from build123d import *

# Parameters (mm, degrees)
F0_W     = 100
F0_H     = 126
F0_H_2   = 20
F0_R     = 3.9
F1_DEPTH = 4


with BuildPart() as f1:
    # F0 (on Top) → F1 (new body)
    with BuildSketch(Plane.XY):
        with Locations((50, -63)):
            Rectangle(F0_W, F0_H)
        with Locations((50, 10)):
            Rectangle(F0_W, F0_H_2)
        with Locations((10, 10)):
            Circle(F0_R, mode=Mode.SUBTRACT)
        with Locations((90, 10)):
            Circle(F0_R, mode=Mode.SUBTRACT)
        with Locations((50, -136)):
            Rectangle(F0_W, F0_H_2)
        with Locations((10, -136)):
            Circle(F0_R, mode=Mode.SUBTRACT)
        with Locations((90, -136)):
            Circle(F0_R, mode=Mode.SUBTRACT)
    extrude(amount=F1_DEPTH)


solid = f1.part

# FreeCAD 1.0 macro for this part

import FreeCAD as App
import Part
import Sketcher
from FreeCAD import Vector
Q = App.Units.Quantity


def add_polygon(sketch, points):
    """Adds a closed chain of lines whose ends are joined by coincident constraints."""
    first, n = sketch.GeometryCount, len(points)
    for a, b in zip(points, points[1:] + points[:1]):
        sketch.addGeometry(Part.LineSegment(App.Vector(*a, 0), App.Vector(*b, 0)), False)
    for i in range(n):
        sketch.addConstraint(Sketcher.Constraint("Coincident", first + i, 2, first + (i + 1) % n, 1))

doc = App.newDocument("Part")
body = doc.addObject("PartDesign::Body", "Body")

sketch1 = body.newObject("Sketcher::SketchObject", "Sketch")
sketch1.AttachmentSupport = (doc.getObject("XY_Plane"), [""])
sketch1.MapMode = "FlatFace"
add_polygon(sketch1, [(0, 20), (0, -146), (100, -146), (100, 20)])
sketch1.addGeometry(Part.Circle(Vector(10, -136, 0), Vector(0, 0, 1), 3.9), False)
sketch1.addGeometry(Part.Circle(Vector(90, -136, 0), Vector(0, 0, 1), 3.9), False)
sketch1.addGeometry(Part.Circle(Vector(10, 10, 0), Vector(0, 0, 1), 3.9), False)
sketch1.addGeometry(Part.Circle(Vector(90, 10, 0), Vector(0, 0, 1), 3.9), False)
sketch1.addConstraint([
    Sketcher.Constraint("Vertical", 0),
    Sketcher.Constraint("Horizontal", 1),
    Sketcher.Constraint("Vertical", 2),
    Sketcher.Constraint("Horizontal", 3),
    Sketcher.Constraint("Equal", 4, 5),
    Sketcher.Constraint("Equal", 5, 6),
    Sketcher.Constraint("Equal", 6, 7),
    Sketcher.Constraint("PointOnObject", 0, 2, -2),
    Sketcher.Constraint("Horizontal", 4, 3, 5, 3),
    Sketcher.Constraint("Horizontal", 6, 3, 7, 3),
    Sketcher.Constraint("Vertical", 4, 3, 6, 3),
    Sketcher.Constraint("Vertical", 5, 3, 7, 3),
    Sketcher.Constraint("Diameter", 4, Q("7.8 mm")),
    Sketcher.Constraint("DistanceX", 1, 1, 1, 2, Q("100 mm")),
    Sketcher.Constraint("DistanceY", 0, 2, 0, 1, Q("166 mm")),
    Sketcher.Constraint("DistanceX", -1, 1, 4, 3, Q("10 mm")),
    Sketcher.Constraint("DistanceY", 4, 3, -1, 1, Q("136 mm")),
    Sketcher.Constraint("DistanceX", -1, 1, 5, 3, Q("90 mm")),
    Sketcher.Constraint("DistanceY", -1, 1, 6, 3, Q("10 mm")),
    Sketcher.Constraint("DistanceY", 0, 2, -1, 1, Q("146 mm")),
])
pad1 = body.newObject("PartDesign::Pad", "Pad")
pad1.Profile = sketch1
pad1.Length = 4

doc.recompute()
